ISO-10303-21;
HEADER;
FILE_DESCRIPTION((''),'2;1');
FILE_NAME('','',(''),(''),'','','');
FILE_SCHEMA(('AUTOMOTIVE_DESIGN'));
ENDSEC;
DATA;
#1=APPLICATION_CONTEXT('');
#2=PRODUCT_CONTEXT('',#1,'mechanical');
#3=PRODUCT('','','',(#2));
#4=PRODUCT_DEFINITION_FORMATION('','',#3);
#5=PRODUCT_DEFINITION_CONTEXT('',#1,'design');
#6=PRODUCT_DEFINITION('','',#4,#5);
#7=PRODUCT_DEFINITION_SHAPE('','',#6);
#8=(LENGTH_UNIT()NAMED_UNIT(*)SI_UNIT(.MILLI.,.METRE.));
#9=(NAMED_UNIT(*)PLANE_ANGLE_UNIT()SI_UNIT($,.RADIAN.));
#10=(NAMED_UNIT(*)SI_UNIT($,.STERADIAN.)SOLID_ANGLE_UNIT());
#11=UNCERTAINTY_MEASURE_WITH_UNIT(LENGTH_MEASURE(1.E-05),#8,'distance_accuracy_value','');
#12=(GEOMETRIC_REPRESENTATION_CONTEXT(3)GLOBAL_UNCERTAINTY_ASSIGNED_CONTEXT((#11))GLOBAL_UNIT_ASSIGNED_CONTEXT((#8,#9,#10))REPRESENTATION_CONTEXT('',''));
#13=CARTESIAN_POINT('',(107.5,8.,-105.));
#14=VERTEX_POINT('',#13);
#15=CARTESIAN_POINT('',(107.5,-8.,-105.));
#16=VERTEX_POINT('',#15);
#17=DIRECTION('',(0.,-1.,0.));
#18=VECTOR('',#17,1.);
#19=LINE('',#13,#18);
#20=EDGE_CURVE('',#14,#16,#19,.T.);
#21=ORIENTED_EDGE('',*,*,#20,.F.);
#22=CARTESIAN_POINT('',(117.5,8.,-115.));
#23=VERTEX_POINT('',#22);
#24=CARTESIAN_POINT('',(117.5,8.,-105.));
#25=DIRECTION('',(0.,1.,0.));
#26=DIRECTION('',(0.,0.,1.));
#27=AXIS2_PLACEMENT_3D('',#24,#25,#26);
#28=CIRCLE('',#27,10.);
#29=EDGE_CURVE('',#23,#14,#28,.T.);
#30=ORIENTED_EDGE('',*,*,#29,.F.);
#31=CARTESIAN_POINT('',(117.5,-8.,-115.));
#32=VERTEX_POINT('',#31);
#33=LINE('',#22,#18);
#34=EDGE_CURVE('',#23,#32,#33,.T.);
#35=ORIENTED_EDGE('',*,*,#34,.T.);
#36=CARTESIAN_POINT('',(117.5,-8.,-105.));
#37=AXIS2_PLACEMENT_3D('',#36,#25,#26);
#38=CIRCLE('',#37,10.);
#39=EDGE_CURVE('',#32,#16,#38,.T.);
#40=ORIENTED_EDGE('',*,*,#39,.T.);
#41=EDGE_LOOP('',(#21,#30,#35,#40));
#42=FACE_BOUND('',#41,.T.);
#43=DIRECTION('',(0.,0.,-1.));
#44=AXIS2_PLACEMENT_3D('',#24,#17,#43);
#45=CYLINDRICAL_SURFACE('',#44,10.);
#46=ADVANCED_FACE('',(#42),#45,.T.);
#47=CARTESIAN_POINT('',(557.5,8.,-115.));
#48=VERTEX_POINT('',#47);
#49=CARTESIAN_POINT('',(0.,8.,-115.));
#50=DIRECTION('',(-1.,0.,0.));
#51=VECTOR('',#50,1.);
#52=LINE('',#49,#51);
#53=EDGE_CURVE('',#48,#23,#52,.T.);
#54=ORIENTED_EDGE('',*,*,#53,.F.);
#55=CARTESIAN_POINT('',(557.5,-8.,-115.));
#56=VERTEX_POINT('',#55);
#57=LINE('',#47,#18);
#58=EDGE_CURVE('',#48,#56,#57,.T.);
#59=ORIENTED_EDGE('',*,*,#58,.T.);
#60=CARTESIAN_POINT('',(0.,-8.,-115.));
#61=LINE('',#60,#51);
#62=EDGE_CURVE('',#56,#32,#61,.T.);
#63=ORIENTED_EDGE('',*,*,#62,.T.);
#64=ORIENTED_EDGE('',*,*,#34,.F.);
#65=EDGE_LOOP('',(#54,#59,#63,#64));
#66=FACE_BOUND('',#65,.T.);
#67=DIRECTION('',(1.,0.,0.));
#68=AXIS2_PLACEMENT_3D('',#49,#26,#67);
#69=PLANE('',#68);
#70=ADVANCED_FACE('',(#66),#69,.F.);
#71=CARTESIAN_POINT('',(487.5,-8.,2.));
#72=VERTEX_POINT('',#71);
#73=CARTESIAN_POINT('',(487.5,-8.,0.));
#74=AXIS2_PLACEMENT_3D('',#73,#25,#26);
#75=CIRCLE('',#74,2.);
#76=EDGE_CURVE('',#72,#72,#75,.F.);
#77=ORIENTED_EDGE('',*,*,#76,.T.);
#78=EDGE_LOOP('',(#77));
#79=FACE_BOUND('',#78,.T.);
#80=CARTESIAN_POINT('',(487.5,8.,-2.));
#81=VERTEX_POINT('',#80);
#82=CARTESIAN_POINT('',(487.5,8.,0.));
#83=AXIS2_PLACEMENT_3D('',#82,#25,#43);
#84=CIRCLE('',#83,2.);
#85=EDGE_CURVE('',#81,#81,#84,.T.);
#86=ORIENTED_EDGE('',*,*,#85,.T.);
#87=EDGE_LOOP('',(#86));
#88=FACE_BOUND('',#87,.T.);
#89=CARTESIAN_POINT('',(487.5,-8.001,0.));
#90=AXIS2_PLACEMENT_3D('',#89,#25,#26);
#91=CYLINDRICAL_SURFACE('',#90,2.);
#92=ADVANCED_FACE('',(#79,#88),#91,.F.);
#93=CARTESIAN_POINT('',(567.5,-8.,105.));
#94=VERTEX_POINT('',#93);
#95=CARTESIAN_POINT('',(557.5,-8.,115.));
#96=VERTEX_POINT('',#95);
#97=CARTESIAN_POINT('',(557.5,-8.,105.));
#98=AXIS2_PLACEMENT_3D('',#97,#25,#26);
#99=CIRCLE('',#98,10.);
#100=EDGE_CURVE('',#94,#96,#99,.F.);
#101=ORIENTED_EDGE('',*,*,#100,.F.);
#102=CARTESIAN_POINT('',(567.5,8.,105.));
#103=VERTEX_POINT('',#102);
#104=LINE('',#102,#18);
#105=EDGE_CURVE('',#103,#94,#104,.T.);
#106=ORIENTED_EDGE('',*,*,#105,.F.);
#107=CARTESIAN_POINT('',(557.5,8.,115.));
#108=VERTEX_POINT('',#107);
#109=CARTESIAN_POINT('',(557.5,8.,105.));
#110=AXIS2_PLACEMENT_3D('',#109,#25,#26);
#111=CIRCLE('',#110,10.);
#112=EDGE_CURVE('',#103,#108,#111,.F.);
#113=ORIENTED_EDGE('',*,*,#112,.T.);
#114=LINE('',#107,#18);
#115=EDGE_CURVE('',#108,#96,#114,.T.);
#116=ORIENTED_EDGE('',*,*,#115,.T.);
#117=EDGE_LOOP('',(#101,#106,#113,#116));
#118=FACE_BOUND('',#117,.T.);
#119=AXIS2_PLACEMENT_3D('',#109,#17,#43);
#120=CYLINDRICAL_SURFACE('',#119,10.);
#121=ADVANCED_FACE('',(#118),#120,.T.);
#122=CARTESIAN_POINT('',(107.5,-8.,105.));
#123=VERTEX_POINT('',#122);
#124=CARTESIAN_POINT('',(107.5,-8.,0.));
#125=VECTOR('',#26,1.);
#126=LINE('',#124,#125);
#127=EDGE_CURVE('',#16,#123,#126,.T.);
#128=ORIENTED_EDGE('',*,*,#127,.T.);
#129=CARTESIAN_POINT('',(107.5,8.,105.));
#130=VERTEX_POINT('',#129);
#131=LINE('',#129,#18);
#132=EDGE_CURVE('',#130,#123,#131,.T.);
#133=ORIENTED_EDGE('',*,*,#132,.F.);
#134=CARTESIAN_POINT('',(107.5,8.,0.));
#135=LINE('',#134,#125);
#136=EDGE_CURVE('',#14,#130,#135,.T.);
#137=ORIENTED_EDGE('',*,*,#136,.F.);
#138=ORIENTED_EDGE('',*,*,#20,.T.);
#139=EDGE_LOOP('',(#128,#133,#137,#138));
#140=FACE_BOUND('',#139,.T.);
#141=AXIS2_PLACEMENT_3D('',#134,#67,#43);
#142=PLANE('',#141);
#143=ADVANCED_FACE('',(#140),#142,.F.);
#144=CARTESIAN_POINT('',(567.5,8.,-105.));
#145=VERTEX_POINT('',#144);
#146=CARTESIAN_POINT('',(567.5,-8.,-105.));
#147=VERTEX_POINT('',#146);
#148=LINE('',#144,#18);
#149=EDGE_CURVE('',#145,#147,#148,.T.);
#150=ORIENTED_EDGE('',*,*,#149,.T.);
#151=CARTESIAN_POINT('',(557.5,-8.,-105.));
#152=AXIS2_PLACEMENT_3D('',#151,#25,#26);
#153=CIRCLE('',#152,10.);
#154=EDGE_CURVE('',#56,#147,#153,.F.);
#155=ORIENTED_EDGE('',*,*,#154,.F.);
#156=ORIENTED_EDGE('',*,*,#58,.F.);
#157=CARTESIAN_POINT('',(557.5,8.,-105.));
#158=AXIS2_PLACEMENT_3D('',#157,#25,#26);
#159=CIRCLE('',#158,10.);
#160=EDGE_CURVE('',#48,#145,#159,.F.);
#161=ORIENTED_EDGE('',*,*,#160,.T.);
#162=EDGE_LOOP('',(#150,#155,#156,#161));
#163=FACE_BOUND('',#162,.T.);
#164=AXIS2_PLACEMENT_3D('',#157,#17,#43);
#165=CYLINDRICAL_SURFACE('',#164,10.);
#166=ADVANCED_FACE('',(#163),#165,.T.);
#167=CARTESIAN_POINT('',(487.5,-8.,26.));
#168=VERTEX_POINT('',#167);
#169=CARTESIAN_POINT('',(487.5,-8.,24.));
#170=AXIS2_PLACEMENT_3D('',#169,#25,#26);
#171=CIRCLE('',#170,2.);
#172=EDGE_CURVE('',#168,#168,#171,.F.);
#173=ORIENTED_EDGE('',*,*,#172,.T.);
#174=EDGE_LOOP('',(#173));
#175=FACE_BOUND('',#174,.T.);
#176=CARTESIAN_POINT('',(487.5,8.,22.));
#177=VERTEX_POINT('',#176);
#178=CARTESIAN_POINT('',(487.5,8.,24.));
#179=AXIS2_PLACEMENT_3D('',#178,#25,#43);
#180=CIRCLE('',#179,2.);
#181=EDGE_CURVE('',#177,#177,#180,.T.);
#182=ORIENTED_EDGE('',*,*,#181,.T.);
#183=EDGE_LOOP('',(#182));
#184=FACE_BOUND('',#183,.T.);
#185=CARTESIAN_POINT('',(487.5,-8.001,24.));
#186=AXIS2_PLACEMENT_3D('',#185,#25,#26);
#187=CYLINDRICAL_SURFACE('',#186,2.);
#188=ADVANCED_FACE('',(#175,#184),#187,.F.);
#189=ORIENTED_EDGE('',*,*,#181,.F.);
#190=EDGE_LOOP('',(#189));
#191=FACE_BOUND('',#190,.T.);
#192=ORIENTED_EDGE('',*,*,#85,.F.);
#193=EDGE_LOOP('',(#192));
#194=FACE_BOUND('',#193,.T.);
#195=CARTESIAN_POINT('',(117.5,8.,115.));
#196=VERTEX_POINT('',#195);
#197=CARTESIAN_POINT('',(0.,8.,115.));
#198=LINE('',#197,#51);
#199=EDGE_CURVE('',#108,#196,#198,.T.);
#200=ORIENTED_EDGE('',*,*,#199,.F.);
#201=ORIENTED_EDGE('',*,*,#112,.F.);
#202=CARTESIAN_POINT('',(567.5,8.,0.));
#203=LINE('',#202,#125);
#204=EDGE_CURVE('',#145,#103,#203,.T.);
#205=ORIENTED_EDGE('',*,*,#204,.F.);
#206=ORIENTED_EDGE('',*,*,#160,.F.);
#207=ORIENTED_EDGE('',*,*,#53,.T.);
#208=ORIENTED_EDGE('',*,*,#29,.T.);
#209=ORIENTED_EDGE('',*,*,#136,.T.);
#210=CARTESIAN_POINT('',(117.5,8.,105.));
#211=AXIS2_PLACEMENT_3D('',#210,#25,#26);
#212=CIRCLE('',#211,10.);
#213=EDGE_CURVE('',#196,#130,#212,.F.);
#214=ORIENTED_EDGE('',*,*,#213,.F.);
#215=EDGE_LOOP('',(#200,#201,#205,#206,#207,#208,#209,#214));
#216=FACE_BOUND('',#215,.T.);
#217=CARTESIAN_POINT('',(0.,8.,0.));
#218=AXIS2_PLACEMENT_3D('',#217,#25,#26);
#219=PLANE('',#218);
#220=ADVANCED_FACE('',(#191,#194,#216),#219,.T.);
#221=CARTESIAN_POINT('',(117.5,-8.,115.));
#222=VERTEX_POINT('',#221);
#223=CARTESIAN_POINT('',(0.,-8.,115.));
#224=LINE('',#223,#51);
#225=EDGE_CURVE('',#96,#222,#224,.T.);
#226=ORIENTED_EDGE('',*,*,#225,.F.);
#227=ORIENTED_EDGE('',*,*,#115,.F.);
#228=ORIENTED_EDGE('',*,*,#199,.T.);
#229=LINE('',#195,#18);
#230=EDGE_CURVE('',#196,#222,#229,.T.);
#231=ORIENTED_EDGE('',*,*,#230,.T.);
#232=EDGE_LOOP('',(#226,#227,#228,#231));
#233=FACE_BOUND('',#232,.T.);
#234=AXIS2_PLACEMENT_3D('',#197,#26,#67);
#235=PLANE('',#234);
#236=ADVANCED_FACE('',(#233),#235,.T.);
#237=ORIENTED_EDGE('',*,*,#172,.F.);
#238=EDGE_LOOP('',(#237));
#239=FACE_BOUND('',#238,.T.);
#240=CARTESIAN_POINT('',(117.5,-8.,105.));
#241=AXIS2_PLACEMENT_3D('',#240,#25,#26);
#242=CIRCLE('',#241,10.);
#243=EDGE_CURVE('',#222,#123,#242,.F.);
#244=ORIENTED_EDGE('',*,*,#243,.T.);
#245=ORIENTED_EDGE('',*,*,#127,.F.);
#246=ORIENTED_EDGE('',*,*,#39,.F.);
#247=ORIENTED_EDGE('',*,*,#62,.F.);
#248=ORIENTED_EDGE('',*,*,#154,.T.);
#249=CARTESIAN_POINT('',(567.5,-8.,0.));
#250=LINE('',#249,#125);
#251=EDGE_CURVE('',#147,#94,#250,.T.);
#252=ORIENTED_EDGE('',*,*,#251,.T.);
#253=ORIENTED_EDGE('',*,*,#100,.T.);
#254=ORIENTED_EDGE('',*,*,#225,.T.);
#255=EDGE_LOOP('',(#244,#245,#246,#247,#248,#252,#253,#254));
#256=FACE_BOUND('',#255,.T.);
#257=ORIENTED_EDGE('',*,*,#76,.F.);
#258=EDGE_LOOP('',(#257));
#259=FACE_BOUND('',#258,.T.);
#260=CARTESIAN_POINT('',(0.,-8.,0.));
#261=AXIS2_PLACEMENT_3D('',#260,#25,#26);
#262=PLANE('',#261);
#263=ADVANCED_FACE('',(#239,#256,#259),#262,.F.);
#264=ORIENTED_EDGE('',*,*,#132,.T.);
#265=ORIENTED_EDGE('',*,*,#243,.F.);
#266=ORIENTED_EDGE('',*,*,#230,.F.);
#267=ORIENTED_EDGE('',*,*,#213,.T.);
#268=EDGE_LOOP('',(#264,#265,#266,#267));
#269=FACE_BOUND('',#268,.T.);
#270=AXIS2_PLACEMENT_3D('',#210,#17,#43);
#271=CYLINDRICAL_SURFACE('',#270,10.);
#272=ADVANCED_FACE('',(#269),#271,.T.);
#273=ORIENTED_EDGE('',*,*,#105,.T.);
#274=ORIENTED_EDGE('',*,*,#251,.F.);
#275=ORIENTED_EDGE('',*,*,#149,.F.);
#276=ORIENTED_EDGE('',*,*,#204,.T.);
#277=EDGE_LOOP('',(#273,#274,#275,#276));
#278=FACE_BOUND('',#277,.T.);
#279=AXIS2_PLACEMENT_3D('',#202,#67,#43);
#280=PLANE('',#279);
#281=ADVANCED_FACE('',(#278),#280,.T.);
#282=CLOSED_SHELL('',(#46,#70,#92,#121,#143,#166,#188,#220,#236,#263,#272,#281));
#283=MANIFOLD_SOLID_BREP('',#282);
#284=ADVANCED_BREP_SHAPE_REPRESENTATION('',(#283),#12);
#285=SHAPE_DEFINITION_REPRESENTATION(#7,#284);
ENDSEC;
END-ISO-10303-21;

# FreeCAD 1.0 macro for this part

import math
import FreeCAD as App
import Part
import Sketcher
from FreeCAD import Vector

doc = App.newDocument("Part")
params = doc.addObject("Spreadsheet::Sheet", "Params")
for row, (alias, value) in enumerate([
    ("sketch1_radius", "10 mm"),
    ("sketch1_width", "440 mm"),
    ("sketch1_height", "210 mm"),
    ("pad1_length", "16 mm"),
    ("sketch2_diameter", "4 mm"),
    ("sketch3_diameter", "4 mm"),
], start=1):
    params.set(f"A{row}", alias)
    params.set(f"B{row}", "=" + value)
    params.setAlias(f"B{row}", alias)

body = doc.addObject("PartDesign::Body", "Body")

sketch1 = doc.addObject("Sketcher::SketchObject", "Sketch")
body.addObject(sketch1)
sketch1.AttachmentSupport = (doc.XZ_Plane, [""])
sketch1.MapMode = "FlatFace"
sketch1.addGeometry([
    Part.LineSegment(Vector(558, -115, 0), Vector(118, -115, 0)),
    Part.ArcOfCircle(Part.Circle(Vector(118, -105, 0), Vector(0, 0, 1), 10), math.radians(180), math.radians(270)),
    Part.LineSegment(Vector(108, -105, 0), Vector(108, 105, 0)),
    Part.ArcOfCircle(Part.Circle(Vector(118, 105, 0), Vector(0, 0, 1), 10), math.radians(90), math.radians(180)),
    Part.LineSegment(Vector(118, 115, 0), Vector(558, 115, 0)),
    Part.ArcOfCircle(Part.Circle(Vector(558, 105, 0), Vector(0, 0, 1), 10), math.radians(0), math.radians(90)),
    Part.LineSegment(Vector(568, 105, 0), Vector(568, -105, 0)),
    Part.ArcOfCircle(Part.Circle(Vector(558, -105, 0), Vector(0, 0, 1), 10), math.radians(-90), math.radians(0)),
], False)
sketch1.addConstraint([
    Sketcher.Constraint("Tangent", 0, 2, 1, 2),
    Sketcher.Constraint("Tangent", 1, 1, 2, 1),
    Sketcher.Constraint("Tangent", 2, 2, 3, 2),
    Sketcher.Constraint("Tangent", 3, 1, 4, 1),
    Sketcher.Constraint("Tangent", 4, 2, 5, 2),
    Sketcher.Constraint("Tangent", 5, 1, 6, 1),
    Sketcher.Constraint("Tangent", 6, 2, 7, 2),
    Sketcher.Constraint("Tangent", 7, 1, 0, 1),
    Sketcher.Constraint("Horizontal", 0),
    Sketcher.Constraint("Vertical", 2),
    Sketcher.Constraint("Horizontal", 4),
    Sketcher.Constraint("Vertical", 6),
    Sketcher.Constraint("Equal", 1, 3),
    Sketcher.Constraint("Equal", 3, 5),
    Sketcher.Constraint("Equal", 5, 7),
    Sketcher.Constraint("Radius", 1, 10.0),
    Sketcher.Constraint("DistanceX", 0, 2, 0, 1, 440.0),
    Sketcher.Constraint("DistanceY", 2, 1, 2, 2, 210.0),
    Sketcher.Constraint("DistanceY", 1, 3, -1, 1, 105.0),
    Sketcher.Constraint("DistanceX", -1, 1, 1, 3, 117.5),
])
sketch1.setExpression("Constraints[15]", "Params.sketch1_radius")
sketch1.setExpression("Constraints[16]", "Params.sketch1_width")
sketch1.setExpression("Constraints[17]", "Params.sketch1_height")
pad1 = doc.addObject("PartDesign::Pad", "Pad")
body.addObject(pad1)
pad1.Profile = sketch1
pad1.setExpression("Length", "Params.pad1_length")
pad1.Midplane = True

sketch2 = doc.addObject("Sketcher::SketchObject", "Sketch001")
body.addObject(sketch2)
sketch2.AttachmentSupport = (doc.XZ_Plane, [""])
sketch2.MapMode = "FlatFace"
sketch2.AttachmentOffset = App.Placement(Vector(0, 0, -8), App.Rotation())
sketch2.addGeometry(Part.Circle(Vector(487.5, 24, 0), Vector(0, 0, 1), 2), False)
sketch2.addConstraint([
    Sketcher.Constraint("Diameter", 0, 4.0),
    Sketcher.Constraint("DistanceY", -1, 1, 0, 3, 24.0),
    Sketcher.Constraint("DistanceX", -1, 1, 0, 3, 487.5),
])
sketch2.setExpression("Constraints[0]", "Params.sketch2_diameter")
pocket1 = doc.addObject("PartDesign::Pocket", "Pocket")
body.addObject(pocket1)
pocket1.Profile = sketch2
pocket1.Type = "UpToFirst"
pocket1.Reversed = True

sketch3 = doc.addObject("Sketcher::SketchObject", "Sketch002")
body.addObject(sketch3)
sketch3.AttachmentSupport = (doc.XZ_Plane, [""])
sketch3.MapMode = "FlatFace"
sketch3.AttachmentOffset = App.Placement(Vector(0, 0, -8), App.Rotation())
sketch3.addGeometry(Part.Circle(Vector(487.5, 0, 0), Vector(0, 0, 1), 2), False)
sketch3.addConstraint([
    Sketcher.Constraint("PointOnObject", 0, 3, -1),
    Sketcher.Constraint("Diameter", 0, 4.0),
    Sketcher.Constraint("DistanceX", -1, 1, 0, 3, 487.5),
])
sketch3.setExpression("Constraints[1]", "Params.sketch3_diameter")
pocket2 = doc.addObject("PartDesign::Pocket", "Pocket001")
body.addObject(pocket2)
pocket2.Profile = sketch3
pocket2.Type = "UpToFirst"
pocket2.Reversed = True

doc.recompute()
